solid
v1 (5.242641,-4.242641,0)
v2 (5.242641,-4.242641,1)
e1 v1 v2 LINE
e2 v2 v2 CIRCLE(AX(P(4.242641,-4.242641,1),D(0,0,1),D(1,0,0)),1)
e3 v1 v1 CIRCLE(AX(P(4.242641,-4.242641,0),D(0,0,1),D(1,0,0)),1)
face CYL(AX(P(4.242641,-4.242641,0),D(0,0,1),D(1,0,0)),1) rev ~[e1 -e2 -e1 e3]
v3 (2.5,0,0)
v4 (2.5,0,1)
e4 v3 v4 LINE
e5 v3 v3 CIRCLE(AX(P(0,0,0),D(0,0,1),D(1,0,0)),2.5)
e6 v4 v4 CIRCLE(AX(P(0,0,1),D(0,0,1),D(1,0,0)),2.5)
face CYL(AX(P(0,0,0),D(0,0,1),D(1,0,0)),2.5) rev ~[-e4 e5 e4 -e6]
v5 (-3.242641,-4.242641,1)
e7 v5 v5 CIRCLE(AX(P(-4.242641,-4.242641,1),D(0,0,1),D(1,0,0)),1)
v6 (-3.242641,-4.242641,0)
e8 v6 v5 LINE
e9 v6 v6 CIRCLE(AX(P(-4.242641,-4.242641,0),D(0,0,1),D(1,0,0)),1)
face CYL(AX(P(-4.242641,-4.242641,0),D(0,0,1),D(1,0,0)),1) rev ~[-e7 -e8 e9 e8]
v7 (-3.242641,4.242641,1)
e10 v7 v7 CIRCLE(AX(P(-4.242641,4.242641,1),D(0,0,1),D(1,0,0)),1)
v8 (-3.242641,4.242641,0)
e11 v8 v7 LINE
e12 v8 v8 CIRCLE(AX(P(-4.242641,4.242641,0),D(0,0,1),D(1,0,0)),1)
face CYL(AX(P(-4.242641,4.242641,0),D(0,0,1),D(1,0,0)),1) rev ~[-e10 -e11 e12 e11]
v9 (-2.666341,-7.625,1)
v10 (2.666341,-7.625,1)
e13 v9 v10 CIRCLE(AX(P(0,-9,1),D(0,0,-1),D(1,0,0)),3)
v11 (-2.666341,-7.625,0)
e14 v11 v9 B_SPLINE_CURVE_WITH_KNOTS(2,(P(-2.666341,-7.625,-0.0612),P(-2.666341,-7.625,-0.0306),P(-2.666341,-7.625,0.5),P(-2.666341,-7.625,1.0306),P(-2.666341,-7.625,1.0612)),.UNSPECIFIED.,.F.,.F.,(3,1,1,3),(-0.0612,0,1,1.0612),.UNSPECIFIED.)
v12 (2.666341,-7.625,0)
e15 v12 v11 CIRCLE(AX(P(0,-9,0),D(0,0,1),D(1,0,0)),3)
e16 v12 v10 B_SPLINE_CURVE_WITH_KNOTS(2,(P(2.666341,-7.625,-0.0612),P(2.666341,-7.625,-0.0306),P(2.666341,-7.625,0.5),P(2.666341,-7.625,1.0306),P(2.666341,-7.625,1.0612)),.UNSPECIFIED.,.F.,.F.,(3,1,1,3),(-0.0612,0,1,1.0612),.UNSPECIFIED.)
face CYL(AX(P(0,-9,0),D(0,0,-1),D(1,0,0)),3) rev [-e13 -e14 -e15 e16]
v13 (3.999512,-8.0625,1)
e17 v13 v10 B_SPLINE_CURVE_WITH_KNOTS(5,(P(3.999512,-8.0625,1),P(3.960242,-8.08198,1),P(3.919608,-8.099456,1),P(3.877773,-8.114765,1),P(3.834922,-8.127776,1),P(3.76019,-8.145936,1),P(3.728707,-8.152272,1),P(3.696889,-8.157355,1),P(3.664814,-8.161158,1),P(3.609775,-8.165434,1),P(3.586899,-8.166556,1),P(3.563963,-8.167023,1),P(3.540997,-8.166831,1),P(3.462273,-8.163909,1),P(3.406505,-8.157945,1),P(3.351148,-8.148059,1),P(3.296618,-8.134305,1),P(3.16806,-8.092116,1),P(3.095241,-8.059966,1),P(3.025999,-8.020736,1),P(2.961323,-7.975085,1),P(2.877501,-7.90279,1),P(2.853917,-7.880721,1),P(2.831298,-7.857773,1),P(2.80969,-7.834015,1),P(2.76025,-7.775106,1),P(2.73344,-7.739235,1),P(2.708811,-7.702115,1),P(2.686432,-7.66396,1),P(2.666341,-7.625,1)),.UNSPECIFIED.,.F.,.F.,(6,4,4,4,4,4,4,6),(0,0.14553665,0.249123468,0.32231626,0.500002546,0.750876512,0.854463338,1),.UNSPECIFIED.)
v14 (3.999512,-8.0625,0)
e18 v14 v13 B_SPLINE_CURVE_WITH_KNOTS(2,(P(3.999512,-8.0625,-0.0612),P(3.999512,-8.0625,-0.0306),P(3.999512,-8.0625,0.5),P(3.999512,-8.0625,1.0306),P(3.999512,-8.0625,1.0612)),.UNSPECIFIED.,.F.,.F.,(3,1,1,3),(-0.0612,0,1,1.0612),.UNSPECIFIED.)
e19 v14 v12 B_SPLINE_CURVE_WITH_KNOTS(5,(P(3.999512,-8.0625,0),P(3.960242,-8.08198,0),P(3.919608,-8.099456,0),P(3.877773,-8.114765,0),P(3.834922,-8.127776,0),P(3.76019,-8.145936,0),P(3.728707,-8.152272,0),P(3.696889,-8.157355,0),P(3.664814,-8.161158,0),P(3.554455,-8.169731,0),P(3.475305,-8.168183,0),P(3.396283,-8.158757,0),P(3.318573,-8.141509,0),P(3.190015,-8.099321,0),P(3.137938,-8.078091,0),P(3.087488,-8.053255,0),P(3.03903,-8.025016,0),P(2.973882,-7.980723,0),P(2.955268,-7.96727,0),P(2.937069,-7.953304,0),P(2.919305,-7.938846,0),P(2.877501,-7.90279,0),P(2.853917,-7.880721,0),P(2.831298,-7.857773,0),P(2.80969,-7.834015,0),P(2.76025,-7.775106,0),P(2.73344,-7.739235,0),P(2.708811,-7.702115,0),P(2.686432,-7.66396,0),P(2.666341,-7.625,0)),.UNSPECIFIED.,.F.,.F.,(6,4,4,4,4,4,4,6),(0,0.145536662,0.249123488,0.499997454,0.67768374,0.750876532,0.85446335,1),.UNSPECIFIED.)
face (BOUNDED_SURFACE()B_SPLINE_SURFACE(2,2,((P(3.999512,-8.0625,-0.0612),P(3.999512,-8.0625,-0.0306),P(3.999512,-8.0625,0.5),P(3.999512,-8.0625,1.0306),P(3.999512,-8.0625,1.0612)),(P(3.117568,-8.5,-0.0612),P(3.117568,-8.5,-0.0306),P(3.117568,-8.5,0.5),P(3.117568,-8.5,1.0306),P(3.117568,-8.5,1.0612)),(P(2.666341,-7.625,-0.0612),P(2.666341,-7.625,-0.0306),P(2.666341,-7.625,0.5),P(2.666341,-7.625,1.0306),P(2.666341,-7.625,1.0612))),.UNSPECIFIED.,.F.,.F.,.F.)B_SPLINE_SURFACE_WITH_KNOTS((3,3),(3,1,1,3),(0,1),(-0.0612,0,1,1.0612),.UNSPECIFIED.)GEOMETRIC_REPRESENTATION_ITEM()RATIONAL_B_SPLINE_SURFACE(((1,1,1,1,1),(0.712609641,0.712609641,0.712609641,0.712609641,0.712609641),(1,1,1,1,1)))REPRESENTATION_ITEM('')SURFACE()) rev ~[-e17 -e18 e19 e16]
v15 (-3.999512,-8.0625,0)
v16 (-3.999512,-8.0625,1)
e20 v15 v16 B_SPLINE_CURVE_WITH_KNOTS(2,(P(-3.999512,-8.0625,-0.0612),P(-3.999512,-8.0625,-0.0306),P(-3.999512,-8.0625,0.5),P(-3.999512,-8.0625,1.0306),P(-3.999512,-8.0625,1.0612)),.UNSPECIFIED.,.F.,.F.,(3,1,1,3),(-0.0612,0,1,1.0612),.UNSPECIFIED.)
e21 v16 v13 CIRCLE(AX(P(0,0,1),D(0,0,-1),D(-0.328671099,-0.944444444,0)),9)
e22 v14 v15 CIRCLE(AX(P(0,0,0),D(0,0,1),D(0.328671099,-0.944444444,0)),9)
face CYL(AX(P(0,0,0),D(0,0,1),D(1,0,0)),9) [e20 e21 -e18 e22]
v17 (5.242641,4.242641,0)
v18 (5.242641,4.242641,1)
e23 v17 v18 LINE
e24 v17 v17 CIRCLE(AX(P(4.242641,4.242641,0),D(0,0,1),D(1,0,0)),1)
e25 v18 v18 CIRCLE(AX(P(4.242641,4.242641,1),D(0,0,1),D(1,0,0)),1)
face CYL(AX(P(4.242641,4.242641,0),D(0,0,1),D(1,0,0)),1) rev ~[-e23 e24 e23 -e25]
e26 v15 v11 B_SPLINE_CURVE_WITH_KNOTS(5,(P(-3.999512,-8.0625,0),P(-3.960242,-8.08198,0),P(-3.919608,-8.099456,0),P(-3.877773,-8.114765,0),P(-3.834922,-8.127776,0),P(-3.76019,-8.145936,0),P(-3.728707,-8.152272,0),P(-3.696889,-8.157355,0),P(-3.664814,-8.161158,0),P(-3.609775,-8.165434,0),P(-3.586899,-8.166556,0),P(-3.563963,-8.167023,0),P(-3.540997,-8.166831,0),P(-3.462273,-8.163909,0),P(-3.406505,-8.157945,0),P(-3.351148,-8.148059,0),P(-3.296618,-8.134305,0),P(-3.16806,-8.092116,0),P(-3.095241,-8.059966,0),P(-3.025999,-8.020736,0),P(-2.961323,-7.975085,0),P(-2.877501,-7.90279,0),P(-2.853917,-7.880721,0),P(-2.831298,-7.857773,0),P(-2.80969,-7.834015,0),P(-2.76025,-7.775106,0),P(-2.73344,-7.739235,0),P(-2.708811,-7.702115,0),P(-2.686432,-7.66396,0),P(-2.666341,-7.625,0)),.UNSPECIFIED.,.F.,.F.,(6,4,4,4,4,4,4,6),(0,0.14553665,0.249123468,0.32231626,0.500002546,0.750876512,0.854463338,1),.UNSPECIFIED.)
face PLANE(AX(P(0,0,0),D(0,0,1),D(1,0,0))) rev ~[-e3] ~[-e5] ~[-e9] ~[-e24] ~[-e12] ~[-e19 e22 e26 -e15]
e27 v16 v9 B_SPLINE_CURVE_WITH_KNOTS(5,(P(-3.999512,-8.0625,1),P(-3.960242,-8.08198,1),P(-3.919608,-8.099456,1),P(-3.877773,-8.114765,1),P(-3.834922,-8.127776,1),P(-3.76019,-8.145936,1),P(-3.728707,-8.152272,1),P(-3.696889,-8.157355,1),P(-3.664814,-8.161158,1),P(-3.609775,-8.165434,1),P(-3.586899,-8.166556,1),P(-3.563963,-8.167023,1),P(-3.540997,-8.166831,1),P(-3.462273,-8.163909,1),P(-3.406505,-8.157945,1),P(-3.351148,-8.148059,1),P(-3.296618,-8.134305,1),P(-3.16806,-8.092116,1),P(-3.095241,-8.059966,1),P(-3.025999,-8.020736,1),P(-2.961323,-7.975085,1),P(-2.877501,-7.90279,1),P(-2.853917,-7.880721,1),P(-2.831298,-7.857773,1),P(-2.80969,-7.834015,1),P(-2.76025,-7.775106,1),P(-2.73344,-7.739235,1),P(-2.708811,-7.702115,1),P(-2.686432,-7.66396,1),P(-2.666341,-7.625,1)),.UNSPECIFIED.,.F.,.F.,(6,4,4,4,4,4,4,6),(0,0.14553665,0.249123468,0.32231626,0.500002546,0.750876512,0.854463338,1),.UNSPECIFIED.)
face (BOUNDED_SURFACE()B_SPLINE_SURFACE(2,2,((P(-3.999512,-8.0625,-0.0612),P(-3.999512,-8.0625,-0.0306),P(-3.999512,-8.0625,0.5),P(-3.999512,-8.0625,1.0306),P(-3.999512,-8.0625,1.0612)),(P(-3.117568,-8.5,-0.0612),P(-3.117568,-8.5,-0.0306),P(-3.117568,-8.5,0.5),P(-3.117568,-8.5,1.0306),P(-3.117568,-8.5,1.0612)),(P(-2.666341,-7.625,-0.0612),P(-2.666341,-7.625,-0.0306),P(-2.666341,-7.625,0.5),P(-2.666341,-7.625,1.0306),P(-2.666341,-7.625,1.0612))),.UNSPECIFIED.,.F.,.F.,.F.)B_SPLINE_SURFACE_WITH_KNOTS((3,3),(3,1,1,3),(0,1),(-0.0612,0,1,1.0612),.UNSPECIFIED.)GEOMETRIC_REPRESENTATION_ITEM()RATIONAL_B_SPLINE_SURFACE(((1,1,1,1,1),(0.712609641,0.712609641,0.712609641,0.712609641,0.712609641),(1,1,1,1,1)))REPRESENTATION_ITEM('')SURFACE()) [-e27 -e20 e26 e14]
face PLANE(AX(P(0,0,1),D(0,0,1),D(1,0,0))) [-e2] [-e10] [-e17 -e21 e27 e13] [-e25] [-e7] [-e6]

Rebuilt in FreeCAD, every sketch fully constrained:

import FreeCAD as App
import Part
import Sketcher


def edges_at(feature, points):
    """Names of the edges that pass closest to the given points."""
    edges = feature.Shape.Edges
    near = lambda p: min(range(len(edges)), key=lambda i: edges[i].distToShape(Part.Vertex(*p))[0])
    return sorted({f"Edge{near(p) + 1}" for p in points})

doc = App.newDocument("Part")
body = doc.addObject("PartDesign::Body", "Body")

# Sketch on XY plane
sketch1 = doc.addObject("Sketcher::SketchObject", "Sketch")
body.addObject(sketch1)
sketch1.AttachmentSupport = (doc.XY_Plane, [""])
sketch1.MapMode = "FlatFace"
sketch1.addGeometry(Part.Circle(App.Vector(0, 0, 0), App.Vector(0, 0, 1), 9), False)
sketch1.addGeometry(Part.Circle(App.Vector(-4.242641, -4.242641, 0), App.Vector(0, 0, 1), 1), False)
sketch1.addGeometry(Part.Circle(App.Vector(4.242641, -4.242641, 0), App.Vector(0, 0, 1), 1), False)
sketch1.addGeometry(Part.Circle(App.Vector(-4.242641, 4.242641, 0), App.Vector(0, 0, 1), 1), False)
sketch1.addGeometry(Part.Circle(App.Vector(0, 0, 0), App.Vector(0, 0, 1), 2.5), False)
sketch1.addGeometry(Part.Circle(App.Vector(4.242641, 4.242641, 0), App.Vector(0, 0, 1), 1), False)
sketch1.addConstraint(Sketcher.Constraint("Coincident", 0, 3, -1, 1))
sketch1.addConstraint(Sketcher.Constraint("Coincident", 4, 3, -1, 1))
sketch1.addConstraint(Sketcher.Constraint("Equal", 1, 2))
sketch1.addConstraint(Sketcher.Constraint("Equal", 2, 3))
sketch1.addConstraint(Sketcher.Constraint("Equal", 3, 5))
sketch1.addConstraint(Sketcher.Constraint("Symmetric", 2, 3, 3, 3, -1, 1))
sketch1.addConstraint(Sketcher.Constraint("Symmetric", 1, 3, 5, 3, -1, 1))
sketch1.addConstraint(Sketcher.Constraint("Symmetric", 1, 3, 2, 3, -2))
sketch1.addConstraint(Sketcher.Constraint("Diameter", 0, 18.0))
sketch1.addConstraint(Sketcher.Constraint("Diameter", 1, 2.0))
sketch1.addConstraint(Sketcher.Constraint("Diameter", 4, 5.0))
sketch1.addConstraint(Sketcher.Constraint("DistanceX", 1, 3, -1, 1, 4.242641))
sketch1.addConstraint(Sketcher.Constraint("DistanceY", 1, 3, -1, 1, 4.242641))

# Sketch on XZ plane
sketch2 = doc.addObject("Sketcher::SketchObject", "Sketch001")
body.addObject(sketch2)
sketch2.AttachmentSupport = (doc.XZ_Plane, [""])
sketch2.MapMode = "FlatFace"
sketch2.addGeometry(Part.LineSegment(App.Vector(0, 0, 0), App.Vector(0, 1, 0)), False)
sketch2.addConstraint(Sketcher.Constraint("Vertical", 0))
sketch2.addConstraint(Sketcher.Constraint("Coincident", 0, 1, -1, 1))
sketch2.addConstraint(Sketcher.Constraint("DistanceY", 0, 1, 0, 2, 1.0))
doc.recompute()

additivepipe = doc.addObject("PartDesign::AdditivePipe", "AdditivePipe")
body.addObject(additivepipe)
additivepipe.Profile = sketch1
additivepipe.Spine = (sketch2, ["Edge1"])

# Sketch on XY plane
sketch3 = doc.addObject("Sketcher::SketchObject", "Sketch002")
body.addObject(sketch3)
sketch3.AttachmentSupport = (doc.XY_Plane, [""])
sketch3.MapMode = "FlatFace"
sketch3.addGeometry(Part.Circle(App.Vector(0, -9, 0), App.Vector(0, 0, 1), 3), False)
sketch3.addConstraint(Sketcher.Constraint("PointOnObject", 0, 3, -2))
sketch3.addConstraint(Sketcher.Constraint("Diameter", 0, 6.0))
sketch3.addConstraint(Sketcher.Constraint("DistanceY", 0, 3, -1, 1, 9.0))
pocket1 = doc.addObject("PartDesign::Pocket", "Pocket")
body.addObject(pocket1)
pocket1.Profile = sketch3
pocket1.Type = "ThroughAll"
pocket1.Reversed = True
doc.recompute()

fillet = doc.addObject("PartDesign::Fillet", "Fillet")
body.addObject(fillet)
fillet.Base = (pocket1, edges_at(pocket1, [(-2.958, -8.5, 0.5), (2.958, -8.5, 0.5)]))
fillet.Radius = 1

doc.recompute()
